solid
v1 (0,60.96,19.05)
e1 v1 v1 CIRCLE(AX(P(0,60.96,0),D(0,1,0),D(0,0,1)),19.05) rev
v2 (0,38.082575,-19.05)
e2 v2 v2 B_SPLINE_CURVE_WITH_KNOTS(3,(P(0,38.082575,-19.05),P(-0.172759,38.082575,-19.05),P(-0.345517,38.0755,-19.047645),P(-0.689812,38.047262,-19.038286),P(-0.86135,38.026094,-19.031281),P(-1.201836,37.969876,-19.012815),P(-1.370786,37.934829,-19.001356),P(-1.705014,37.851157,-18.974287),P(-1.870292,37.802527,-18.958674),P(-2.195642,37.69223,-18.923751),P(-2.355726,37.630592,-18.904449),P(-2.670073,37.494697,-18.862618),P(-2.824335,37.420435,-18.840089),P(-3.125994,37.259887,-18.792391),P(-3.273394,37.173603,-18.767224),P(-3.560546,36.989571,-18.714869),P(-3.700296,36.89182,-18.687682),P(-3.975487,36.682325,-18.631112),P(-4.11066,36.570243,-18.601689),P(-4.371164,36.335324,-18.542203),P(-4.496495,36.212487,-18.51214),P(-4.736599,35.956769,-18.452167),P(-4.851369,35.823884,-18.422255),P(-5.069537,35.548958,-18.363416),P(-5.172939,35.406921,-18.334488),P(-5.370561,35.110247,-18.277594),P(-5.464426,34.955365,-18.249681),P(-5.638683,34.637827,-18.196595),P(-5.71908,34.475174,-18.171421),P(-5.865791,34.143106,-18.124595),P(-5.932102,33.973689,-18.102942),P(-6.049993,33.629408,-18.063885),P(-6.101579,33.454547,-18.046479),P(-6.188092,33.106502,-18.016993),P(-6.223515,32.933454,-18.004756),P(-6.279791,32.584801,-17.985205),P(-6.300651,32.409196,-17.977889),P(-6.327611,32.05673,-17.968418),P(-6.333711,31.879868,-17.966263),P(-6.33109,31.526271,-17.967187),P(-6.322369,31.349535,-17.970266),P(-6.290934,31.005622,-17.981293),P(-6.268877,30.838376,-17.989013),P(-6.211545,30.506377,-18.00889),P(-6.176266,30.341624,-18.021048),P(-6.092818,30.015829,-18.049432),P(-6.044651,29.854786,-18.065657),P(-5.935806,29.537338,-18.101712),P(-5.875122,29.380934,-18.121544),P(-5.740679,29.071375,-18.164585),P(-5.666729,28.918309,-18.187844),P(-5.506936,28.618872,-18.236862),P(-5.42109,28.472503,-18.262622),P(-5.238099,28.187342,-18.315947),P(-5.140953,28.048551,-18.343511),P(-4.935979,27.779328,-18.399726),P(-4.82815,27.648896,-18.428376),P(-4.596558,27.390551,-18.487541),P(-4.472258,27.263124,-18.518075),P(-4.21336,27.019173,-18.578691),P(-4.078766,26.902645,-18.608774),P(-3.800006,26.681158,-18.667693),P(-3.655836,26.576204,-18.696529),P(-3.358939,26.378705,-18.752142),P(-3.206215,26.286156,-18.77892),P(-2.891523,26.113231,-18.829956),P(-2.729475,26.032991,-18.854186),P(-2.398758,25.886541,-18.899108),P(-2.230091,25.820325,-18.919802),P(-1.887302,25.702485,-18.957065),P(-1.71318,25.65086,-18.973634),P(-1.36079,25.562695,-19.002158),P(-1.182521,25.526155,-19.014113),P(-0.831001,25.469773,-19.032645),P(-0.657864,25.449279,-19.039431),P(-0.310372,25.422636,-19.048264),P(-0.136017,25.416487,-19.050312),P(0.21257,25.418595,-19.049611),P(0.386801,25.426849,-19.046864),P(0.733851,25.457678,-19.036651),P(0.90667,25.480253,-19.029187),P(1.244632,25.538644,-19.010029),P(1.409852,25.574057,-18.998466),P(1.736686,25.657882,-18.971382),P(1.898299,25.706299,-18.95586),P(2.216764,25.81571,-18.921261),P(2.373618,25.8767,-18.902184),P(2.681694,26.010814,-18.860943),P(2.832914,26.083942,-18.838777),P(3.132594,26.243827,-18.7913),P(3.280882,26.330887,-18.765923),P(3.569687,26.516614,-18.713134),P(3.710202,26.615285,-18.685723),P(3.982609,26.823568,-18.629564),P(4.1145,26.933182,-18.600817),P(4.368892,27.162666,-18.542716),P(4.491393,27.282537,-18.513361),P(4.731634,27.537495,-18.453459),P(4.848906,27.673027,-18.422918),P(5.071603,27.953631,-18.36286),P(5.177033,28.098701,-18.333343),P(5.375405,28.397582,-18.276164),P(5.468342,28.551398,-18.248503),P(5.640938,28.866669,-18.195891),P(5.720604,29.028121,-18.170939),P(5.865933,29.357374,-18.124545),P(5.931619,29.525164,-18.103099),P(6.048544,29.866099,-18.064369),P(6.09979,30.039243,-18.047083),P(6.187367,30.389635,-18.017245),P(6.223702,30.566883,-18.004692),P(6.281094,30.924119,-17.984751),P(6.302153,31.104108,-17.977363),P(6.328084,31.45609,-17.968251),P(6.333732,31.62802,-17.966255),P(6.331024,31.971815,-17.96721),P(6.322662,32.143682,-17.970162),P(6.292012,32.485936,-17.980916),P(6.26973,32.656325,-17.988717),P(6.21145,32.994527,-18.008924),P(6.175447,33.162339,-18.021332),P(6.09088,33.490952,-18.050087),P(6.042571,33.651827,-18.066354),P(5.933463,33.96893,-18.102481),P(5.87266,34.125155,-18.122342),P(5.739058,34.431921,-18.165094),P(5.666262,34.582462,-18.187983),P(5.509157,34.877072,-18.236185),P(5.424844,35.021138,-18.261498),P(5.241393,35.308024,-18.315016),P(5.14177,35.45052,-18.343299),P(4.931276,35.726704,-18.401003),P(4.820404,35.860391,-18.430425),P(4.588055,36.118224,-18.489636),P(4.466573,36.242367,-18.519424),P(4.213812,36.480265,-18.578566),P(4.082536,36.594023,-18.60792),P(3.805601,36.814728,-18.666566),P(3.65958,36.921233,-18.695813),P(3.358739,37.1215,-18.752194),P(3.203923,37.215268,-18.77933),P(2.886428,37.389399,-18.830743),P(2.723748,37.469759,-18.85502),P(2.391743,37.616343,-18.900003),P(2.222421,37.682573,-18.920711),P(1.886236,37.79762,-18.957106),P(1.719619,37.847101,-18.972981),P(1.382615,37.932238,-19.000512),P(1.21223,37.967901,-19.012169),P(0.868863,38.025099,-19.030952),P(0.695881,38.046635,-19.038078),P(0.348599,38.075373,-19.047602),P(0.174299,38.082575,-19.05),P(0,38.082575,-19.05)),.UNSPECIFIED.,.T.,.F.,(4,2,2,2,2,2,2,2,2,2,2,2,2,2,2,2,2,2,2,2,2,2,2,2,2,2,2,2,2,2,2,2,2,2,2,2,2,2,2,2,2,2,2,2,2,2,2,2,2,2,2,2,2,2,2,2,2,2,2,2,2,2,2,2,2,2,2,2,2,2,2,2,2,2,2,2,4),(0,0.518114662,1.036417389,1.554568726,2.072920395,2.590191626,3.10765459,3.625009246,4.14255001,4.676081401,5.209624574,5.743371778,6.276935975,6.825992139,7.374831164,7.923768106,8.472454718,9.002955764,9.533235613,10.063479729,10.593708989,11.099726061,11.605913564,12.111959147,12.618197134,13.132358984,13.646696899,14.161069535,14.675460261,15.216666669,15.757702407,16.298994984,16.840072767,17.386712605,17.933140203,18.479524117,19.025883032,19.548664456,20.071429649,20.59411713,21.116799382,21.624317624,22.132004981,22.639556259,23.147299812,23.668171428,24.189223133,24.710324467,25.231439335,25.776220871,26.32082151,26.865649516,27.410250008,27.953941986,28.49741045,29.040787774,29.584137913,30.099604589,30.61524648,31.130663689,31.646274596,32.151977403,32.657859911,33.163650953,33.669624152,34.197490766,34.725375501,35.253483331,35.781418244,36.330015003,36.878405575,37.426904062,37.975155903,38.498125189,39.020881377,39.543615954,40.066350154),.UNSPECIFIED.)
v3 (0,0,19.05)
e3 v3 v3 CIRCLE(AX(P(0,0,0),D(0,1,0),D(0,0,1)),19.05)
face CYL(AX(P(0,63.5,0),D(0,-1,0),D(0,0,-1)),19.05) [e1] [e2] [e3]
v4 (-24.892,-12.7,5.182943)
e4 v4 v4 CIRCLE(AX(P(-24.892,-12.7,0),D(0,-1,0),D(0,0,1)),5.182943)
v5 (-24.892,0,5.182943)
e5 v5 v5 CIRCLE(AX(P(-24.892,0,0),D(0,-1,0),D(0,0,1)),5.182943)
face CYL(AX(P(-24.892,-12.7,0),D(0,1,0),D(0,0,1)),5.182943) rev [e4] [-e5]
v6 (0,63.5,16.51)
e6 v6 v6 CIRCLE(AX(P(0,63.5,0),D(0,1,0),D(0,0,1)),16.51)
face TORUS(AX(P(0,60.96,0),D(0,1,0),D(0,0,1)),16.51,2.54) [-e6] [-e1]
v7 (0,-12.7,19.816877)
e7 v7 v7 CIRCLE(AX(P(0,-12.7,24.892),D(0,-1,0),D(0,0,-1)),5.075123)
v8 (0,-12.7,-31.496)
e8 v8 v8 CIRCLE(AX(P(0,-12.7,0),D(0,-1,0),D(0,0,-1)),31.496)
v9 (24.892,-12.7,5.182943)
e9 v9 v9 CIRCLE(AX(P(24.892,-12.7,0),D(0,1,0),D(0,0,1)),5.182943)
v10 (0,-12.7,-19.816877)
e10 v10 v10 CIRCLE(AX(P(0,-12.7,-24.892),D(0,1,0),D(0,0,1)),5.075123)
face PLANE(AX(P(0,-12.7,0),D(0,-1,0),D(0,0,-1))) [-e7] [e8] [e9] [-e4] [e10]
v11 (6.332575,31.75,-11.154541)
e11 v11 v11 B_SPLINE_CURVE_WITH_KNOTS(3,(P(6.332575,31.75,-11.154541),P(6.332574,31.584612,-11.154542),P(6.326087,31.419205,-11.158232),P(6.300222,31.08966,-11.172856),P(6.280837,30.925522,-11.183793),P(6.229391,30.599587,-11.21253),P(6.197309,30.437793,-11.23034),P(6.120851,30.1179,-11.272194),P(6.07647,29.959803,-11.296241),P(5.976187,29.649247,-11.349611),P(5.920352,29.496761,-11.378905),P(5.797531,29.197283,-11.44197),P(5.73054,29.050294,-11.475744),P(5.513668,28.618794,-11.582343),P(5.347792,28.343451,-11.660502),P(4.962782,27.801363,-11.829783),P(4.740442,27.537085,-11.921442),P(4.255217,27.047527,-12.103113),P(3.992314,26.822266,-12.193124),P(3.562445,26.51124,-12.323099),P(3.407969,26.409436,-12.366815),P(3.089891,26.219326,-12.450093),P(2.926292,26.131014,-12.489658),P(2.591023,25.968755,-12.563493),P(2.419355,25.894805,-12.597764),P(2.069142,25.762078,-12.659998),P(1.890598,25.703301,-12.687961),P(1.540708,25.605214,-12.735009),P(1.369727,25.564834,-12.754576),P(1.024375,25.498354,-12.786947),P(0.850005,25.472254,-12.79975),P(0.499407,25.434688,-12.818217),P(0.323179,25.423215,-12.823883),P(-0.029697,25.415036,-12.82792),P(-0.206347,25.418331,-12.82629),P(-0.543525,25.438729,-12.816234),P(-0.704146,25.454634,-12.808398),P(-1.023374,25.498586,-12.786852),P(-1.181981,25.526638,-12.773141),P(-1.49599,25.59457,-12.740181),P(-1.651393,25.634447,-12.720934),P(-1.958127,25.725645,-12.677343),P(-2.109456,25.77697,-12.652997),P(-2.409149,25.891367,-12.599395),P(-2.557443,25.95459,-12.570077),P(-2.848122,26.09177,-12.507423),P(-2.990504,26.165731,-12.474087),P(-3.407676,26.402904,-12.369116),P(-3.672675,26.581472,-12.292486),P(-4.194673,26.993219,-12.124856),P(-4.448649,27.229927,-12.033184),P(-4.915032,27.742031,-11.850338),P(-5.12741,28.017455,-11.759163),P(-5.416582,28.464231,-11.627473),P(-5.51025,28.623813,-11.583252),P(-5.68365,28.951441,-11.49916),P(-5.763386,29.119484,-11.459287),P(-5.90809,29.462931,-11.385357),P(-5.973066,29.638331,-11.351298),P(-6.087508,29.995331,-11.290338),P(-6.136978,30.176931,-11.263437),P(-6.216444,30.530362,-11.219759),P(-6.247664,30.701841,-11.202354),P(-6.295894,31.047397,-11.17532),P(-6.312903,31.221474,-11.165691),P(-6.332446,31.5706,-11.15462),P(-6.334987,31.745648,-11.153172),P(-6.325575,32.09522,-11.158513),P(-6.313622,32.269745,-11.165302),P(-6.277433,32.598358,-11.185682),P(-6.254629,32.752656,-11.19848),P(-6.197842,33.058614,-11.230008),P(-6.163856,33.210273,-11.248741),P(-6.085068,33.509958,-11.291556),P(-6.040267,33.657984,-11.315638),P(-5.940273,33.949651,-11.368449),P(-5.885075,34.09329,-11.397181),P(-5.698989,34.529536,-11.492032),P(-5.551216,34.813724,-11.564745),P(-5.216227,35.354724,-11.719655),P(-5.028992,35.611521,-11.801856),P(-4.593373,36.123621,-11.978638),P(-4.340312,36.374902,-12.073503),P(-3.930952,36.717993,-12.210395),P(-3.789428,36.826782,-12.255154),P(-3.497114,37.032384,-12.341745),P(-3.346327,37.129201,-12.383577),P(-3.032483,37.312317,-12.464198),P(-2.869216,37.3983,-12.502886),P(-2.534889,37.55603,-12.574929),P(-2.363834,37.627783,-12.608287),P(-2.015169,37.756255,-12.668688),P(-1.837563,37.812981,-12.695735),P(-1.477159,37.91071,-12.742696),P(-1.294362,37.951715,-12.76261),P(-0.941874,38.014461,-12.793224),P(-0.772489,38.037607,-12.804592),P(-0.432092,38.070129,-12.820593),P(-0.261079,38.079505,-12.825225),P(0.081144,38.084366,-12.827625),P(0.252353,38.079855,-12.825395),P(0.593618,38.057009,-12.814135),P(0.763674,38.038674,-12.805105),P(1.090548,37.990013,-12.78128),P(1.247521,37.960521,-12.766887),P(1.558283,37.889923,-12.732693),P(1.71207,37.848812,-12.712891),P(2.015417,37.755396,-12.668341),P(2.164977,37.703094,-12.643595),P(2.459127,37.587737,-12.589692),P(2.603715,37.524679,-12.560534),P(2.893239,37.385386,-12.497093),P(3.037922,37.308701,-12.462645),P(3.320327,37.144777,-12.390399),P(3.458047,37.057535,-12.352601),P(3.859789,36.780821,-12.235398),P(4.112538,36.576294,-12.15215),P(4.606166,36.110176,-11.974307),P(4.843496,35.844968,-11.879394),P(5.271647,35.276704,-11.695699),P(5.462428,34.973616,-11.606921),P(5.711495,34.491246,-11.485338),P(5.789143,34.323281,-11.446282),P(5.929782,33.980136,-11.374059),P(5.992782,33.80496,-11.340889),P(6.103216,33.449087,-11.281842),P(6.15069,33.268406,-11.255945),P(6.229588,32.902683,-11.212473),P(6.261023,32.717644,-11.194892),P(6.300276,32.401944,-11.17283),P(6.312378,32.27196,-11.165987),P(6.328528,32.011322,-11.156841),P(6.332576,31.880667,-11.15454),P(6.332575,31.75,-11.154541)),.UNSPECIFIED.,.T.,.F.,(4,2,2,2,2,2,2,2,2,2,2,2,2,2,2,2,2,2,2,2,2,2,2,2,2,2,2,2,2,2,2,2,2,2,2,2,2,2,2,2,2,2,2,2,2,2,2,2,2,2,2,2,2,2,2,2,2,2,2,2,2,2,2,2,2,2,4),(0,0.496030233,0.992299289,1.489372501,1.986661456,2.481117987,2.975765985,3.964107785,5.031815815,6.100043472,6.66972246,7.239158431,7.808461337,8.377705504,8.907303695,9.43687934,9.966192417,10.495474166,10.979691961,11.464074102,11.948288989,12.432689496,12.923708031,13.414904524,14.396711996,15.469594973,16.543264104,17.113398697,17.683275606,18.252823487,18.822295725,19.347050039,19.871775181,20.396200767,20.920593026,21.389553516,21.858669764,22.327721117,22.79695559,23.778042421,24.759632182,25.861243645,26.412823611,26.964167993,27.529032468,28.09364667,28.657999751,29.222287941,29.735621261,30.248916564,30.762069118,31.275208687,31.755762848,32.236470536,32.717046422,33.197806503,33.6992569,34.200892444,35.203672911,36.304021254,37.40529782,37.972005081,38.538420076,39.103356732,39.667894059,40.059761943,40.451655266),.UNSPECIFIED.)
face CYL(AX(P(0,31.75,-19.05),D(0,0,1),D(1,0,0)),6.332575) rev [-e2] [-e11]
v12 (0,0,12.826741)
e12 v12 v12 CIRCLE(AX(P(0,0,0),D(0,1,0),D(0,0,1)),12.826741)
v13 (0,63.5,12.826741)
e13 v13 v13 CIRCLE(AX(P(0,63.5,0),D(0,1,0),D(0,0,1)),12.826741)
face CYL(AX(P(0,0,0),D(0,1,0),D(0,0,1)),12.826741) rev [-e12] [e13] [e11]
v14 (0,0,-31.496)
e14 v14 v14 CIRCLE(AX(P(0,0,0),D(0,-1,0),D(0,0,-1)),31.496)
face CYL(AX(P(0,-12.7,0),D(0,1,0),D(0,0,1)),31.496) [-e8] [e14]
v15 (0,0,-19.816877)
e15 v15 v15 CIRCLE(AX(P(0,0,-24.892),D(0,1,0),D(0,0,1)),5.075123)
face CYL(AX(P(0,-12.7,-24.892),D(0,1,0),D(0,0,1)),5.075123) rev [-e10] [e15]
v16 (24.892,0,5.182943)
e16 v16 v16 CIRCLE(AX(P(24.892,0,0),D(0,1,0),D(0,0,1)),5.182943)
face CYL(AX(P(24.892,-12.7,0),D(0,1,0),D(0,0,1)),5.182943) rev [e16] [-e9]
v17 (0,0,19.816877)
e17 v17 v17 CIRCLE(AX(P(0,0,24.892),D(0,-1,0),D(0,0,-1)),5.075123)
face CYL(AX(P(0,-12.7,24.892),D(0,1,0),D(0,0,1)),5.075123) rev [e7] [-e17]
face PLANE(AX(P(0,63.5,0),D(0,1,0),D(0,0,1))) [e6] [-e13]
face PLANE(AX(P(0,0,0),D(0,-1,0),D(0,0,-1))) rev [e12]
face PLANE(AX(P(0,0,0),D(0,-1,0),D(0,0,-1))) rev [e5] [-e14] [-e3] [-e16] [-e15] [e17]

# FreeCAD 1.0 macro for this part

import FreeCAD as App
import Part
import Sketcher

V = App.Vector
Q = App.Units.Quantity


def edges_at(feature, points):
    """Names of the edges that pass closest to the given points."""
    edges = feature.Shape.Edges
    near = lambda p: min(range(len(edges)), key=lambda i: edges[i].distToShape(Part.Vertex(*p))[0])
    return sorted({f"Edge{near(p) + 1}" for p in points})

doc = App.newDocument("Part")
body = doc.addObject("PartDesign::Body", "Body")

# Sketch on XZ plane
sketch1 = doc.addObject("Sketcher::SketchObject", "Sketch")
body.addObject(sketch1)
sketch1.AttachmentSupport = (doc.XZ_Plane, [""])
sketch1.MapMode = "FlatFace"
sketch1.addGeometry(Part.Circle(V(0, 0, 0), V(0, 0, 1), 19.05), False)
sketch1.addConstraint([
    Sketcher.Constraint("Coincident", 0, 3, -1, 1),
    Sketcher.Constraint("Diameter", 0, Q("1.5 in")),
])
pad1 = doc.addObject("PartDesign::Pad", "Pad")
body.addObject(pad1)
pad1.Profile = sketch1
pad1.Length = Q("2.5 in")
pad1.Reversed = True

# Sketch on XZ plane
sketch2 = doc.addObject("Sketcher::SketchObject", "Sketch001")
body.addObject(sketch2)
sketch2.AttachmentSupport = (doc.XZ_Plane, [""])
sketch2.MapMode = "FlatFace"
sketch2.AttachmentOffset = App.Placement(V(0, 0, -2.5 * 25.4), App.Rotation())
sketch2.addGeometry(Part.Circle(V(0, 0, 0), V(0, 0, 1), 12.826741), False)
sketch2.addConstraint([
    Sketcher.Constraint("Coincident", 0, 3, -1, 1),
    Sketcher.Constraint("Diameter", 0, Q("25.653482 mm")),
])
pocket1 = doc.addObject("PartDesign::Pocket", "Pocket")
body.addObject(pocket1)
pocket1.Profile = sketch2
pocket1.Type = "ThroughAll"
pocket1.Reversed = True

# Sketch on XY plane
sketch3 = doc.addObject("Sketcher::SketchObject", "Sketch002")
body.addObject(sketch3)
sketch3.AttachmentSupport = (doc.XY_Plane, [""])
sketch3.MapMode = "FlatFace"
sketch3.addGeometry(Part.Circle(V(0, 31.75, 0), V(0, 0, 1), 6.332575), False)
sketch3.addConstraint([
    Sketcher.Constraint("PointOnObject", 0, 3, -2),
    Sketcher.Constraint("DistanceY", -1, 1, 0, 3, Q("1.25 in")),
    Sketcher.Constraint("Diameter", 0, Q("12.66515 mm")),
])
pocket2 = doc.addObject("PartDesign::Pocket", "Pocket001")
body.addObject(pocket2)
pocket2.Profile = sketch3
pocket2.Type = "ThroughAll"
doc.recompute()

fillet = doc.addObject("PartDesign::Fillet", "Fillet")
body.addObject(fillet)
fillet.Base = (pocket2, edges_at(pocket2, [(0, 63.5, -19.05)]))
fillet.Radius = Q("0.1 in")

# Sketch on XZ plane
sketch4 = doc.addObject("Sketcher::SketchObject", "Sketch003")
body.addObject(sketch4)
sketch4.AttachmentSupport = (doc.XZ_Plane, [""])
sketch4.MapMode = "FlatFace"
sketch4.addGeometry(Part.Circle(V(0, 0, 0), V(0, 0, 1), 31.496), False)
sketch4.addConstraint([
    Sketcher.Constraint("Coincident", 0, 3, -1, 1),
    Sketcher.Constraint("Diameter", 0, Q("2.48 in")),
])
pad2 = doc.addObject("PartDesign::Pad", "Pad001")
body.addObject(pad2)
pad2.Profile = sketch4
pad2.Length = Q("0.5 in")

# Sketch on XZ plane
sketch5 = doc.addObject("Sketcher::SketchObject", "Sketch004")
body.addObject(sketch5)
sketch5.AttachmentSupport = (doc.XZ_Plane, [""])
sketch5.MapMode = "FlatFace"
sketch5.addGeometry(Part.Circle(V(0, -24.892, 0), V(0, 0, 1), 5.075123), False)
sketch5.addConstraint([
    Sketcher.Constraint("PointOnObject", 0, 3, -2),
    Sketcher.Constraint("DistanceY", 0, 3, -1, 1, Q("0.98 in")),
    Sketcher.Constraint("Diameter", 0, Q("10.150247 mm")),
])
pocket3 = doc.addObject("PartDesign::Pocket", "Pocket002")
body.addObject(pocket3)
pocket3.Profile = sketch5
pocket3.Type = "ThroughAll"
pocket3.Reversed = True
doc.recompute()

mirrored = doc.addObject("PartDesign::Mirrored", "Mirrored")
body.addObject(mirrored)
mirrored.Originals = [pocket3]
mirrored.MirrorPlane = (doc.YZ_Plane, [""])
body.Tip = mirrored
doc.recompute()

mirrored2 = doc.addObject("PartDesign::Mirrored", "Mirrored001")
body.addObject(mirrored2)
mirrored2.Originals = [pocket3]
mirrored2.MirrorPlane = (doc.XY_Plane, [""])
body.Tip = mirrored2

# Sketch on XZ plane
sketch6 = doc.addObject("Sketcher::SketchObject", "Sketch005")
body.addObject(sketch6)
sketch6.AttachmentSupport = (doc.XZ_Plane, [""])
sketch6.MapMode = "FlatFace"
sketch6.addGeometry(Part.Circle(V(0, 24.892, 0), V(0, 0, 1), 5.075123), False)
sketch6.addConstraint([
    Sketcher.Constraint("PointOnObject", 0, 3, -2),
    Sketcher.Constraint("DistanceY", -1, 1, 0, 3, Q("0.98 in")),
    Sketcher.Constraint("Diameter", 0, Q("10.150247 mm")),
])
pocket4 = doc.addObject("PartDesign::Pocket", "Pocket003")
body.addObject(pocket4)
pocket4.Profile = sketch6
pocket4.Type = "ThroughAll"
pocket4.Reversed = True

# Sketch on XZ plane
sketch7 = doc.addObject("Sketcher::SketchObject", "Sketch006")
body.addObject(sketch7)
sketch7.AttachmentSupport = (doc.XZ_Plane, [""])
sketch7.MapMode = "FlatFace"
sketch7.addGeometry(Part.Circle(V(24.892, 0, 0), V(0, 0, 1), 5.182943), False)
sketch7.addConstraint([
    Sketcher.Constraint("PointOnObject", 0, 3, -1),
    Sketcher.Constraint("DistanceX", -1, 1, 0, 3, Q("0.98 in")),
    Sketcher.Constraint("Diameter", 0, Q("10.365887 mm")),
])
pocket5 = doc.addObject("PartDesign::Pocket", "Pocket004")
body.addObject(pocket5)
pocket5.Profile = sketch7
pocket5.Type = "ThroughAll"
pocket5.Reversed = True
doc.recompute()

mirrored3 = doc.addObject("PartDesign::Mirrored", "Mirrored002")
body.addObject(mirrored3)
mirrored3.Originals = [pocket5]
mirrored3.MirrorPlane = (doc.XY_Plane, [""])
body.Tip = mirrored3
doc.recompute()

mirrored4 = doc.addObject("PartDesign::Mirrored", "Mirrored003")
body.addObject(mirrored4)
mirrored4.Originals = [pocket5]
mirrored4.MirrorPlane = (doc.YZ_Plane, [""])
body.Tip = mirrored4

# Sketch on XZ plane
sketch8 = doc.addObject("Sketcher::SketchObject", "Sketch007")
body.addObject(sketch8)
sketch8.AttachmentSupport = (doc.XZ_Plane, [""])
sketch8.MapMode = "FlatFace"
sketch8.addGeometry(Part.Circle(V(-24.892, 0, 0), V(0, 0, 1), 5.182943), False)
sketch8.addConstraint([
    Sketcher.Constraint("PointOnObject", 0, 3, -1),
    Sketcher.Constraint("DistanceX", 0, 3, -1, 1, Q("0.98 in")),
    Sketcher.Constraint("Diameter", 0, Q("10.365887 mm")),
])
pocket6 = doc.addObject("PartDesign::Pocket", "Pocket005")
body.addObject(pocket6)
pocket6.Profile = sketch8
pocket6.Type = "ThroughAll"
pocket6.Reversed = True

doc.recompute()
